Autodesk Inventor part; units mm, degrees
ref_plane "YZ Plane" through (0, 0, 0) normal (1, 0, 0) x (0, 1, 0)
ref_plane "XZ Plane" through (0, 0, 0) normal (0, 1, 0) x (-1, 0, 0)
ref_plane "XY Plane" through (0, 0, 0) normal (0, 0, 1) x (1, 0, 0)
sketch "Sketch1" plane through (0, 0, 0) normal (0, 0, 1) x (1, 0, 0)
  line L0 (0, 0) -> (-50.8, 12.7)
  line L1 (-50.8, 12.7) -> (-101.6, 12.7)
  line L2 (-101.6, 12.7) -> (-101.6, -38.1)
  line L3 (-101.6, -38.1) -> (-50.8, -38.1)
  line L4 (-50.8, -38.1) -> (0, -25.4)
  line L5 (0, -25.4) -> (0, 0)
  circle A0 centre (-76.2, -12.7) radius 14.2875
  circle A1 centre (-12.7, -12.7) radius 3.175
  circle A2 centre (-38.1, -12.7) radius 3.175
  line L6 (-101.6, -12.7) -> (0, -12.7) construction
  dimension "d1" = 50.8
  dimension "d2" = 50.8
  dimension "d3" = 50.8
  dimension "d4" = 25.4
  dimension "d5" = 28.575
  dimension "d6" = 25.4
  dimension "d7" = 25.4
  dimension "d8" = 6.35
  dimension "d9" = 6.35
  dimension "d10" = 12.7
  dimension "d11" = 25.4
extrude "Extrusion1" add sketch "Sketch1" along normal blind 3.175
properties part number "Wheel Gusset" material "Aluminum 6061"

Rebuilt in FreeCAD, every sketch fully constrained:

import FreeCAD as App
import Part
import Sketcher
from FreeCAD import Vector
Q = App.Units.Quantity

doc = App.newDocument("Part")
body = doc.addObject("PartDesign::Body", "Body")

sketch1 = body.newObject("Sketcher::SketchObject", "Sketch")
sketch1.AttachmentSupport = (doc.getObject("XY_Plane"), [""])
sketch1.MapMode = "FlatFace"
sketch1.addGeometry([
    Part.LineSegment(Vector(0, -25.4, 0), Vector(0, 0, 0)),
    Part.LineSegment(Vector(0, 0, 0), Vector(-50.8, 12.7, 0)),
    Part.LineSegment(Vector(-50.8, 12.7, 0), Vector(-101.6, 12.7, 0)),
    Part.LineSegment(Vector(-101.6, 12.7, 0), Vector(-101.6, -38.1, 0)),
    Part.LineSegment(Vector(-101.6, -38.1, 0), Vector(-50.8, -38.1, 0)),
    Part.LineSegment(Vector(-50.8, -38.1, 0), Vector(0, -25.4, 0)),
    Part.Circle(Vector(-76.2, -12.7, 0), Vector(0, 0, 1), 14.3),
    Part.Circle(Vector(-38.1, -12.7, 0), Vector(0, 0, 1), 3.2),
    Part.Circle(Vector(-12.7, -12.7, 0), Vector(0, 0, 1), 3.2),
], False)
sketch1.addConstraint([
    Sketcher.Constraint("Coincident", 0, 2, 1, 1),
    Sketcher.Constraint("Coincident", 1, 2, 2, 1),
    Sketcher.Constraint("Coincident", 2, 2, 3, 1),
    Sketcher.Constraint("Coincident", 3, 2, 4, 1),
    Sketcher.Constraint("Coincident", 4, 2, 5, 1),
    Sketcher.Constraint("Coincident", 5, 2, 0, 1),
    Sketcher.Constraint("Vertical", 0),
    Sketcher.Constraint("Horizontal", 2),
    Sketcher.Constraint("Vertical", 3),
    Sketcher.Constraint("Horizontal", 4),
    Sketcher.Constraint("Coincident", 0, 2, -1, 1),
    Sketcher.Constraint("Equal", 7, 8),
    Sketcher.Constraint("Horizontal", 6, 3, 7, 3),
    Sketcher.Constraint("Horizontal", 7, 3, 8, 3),
    Sketcher.Constraint("Vertical", 1, 2, 4, 2),
    Sketcher.Constraint("Equal", 4, 3),
    Sketcher.Constraint("Equal", 1, 5),
    Sketcher.Constraint("Diameter", 7, Q("0.25 in")),
    Sketcher.Constraint("DistanceX", 2, 2, 2, 1, Q("2 in")),
    Sketcher.Constraint("DistanceY", 0, 1, 0, 2, Q("1 in")),
    Sketcher.Constraint("Diameter", 6, Q("1.125 in")),
    Sketcher.Constraint("DistanceX", 1, 2, -1, 1, Q("2 in")),
    Sketcher.Constraint("DistanceX", 7, 3, 8, 3, Q("1 in")),
    Sketcher.Constraint("DistanceY", 7, 3, 1, 2, Q("1 in")),
    Sketcher.Constraint("DistanceX", 6, 3, 1, 2, Q("1 in")),
    Sketcher.Constraint("DistanceX", 8, 3, -1, 1, Q("0.5 in")),
])
pad1 = body.newObject("PartDesign::Pad", "Pad")
pad1.Profile = sketch1
pad1.Length = Q("0.125 in")

doc.recompute()
